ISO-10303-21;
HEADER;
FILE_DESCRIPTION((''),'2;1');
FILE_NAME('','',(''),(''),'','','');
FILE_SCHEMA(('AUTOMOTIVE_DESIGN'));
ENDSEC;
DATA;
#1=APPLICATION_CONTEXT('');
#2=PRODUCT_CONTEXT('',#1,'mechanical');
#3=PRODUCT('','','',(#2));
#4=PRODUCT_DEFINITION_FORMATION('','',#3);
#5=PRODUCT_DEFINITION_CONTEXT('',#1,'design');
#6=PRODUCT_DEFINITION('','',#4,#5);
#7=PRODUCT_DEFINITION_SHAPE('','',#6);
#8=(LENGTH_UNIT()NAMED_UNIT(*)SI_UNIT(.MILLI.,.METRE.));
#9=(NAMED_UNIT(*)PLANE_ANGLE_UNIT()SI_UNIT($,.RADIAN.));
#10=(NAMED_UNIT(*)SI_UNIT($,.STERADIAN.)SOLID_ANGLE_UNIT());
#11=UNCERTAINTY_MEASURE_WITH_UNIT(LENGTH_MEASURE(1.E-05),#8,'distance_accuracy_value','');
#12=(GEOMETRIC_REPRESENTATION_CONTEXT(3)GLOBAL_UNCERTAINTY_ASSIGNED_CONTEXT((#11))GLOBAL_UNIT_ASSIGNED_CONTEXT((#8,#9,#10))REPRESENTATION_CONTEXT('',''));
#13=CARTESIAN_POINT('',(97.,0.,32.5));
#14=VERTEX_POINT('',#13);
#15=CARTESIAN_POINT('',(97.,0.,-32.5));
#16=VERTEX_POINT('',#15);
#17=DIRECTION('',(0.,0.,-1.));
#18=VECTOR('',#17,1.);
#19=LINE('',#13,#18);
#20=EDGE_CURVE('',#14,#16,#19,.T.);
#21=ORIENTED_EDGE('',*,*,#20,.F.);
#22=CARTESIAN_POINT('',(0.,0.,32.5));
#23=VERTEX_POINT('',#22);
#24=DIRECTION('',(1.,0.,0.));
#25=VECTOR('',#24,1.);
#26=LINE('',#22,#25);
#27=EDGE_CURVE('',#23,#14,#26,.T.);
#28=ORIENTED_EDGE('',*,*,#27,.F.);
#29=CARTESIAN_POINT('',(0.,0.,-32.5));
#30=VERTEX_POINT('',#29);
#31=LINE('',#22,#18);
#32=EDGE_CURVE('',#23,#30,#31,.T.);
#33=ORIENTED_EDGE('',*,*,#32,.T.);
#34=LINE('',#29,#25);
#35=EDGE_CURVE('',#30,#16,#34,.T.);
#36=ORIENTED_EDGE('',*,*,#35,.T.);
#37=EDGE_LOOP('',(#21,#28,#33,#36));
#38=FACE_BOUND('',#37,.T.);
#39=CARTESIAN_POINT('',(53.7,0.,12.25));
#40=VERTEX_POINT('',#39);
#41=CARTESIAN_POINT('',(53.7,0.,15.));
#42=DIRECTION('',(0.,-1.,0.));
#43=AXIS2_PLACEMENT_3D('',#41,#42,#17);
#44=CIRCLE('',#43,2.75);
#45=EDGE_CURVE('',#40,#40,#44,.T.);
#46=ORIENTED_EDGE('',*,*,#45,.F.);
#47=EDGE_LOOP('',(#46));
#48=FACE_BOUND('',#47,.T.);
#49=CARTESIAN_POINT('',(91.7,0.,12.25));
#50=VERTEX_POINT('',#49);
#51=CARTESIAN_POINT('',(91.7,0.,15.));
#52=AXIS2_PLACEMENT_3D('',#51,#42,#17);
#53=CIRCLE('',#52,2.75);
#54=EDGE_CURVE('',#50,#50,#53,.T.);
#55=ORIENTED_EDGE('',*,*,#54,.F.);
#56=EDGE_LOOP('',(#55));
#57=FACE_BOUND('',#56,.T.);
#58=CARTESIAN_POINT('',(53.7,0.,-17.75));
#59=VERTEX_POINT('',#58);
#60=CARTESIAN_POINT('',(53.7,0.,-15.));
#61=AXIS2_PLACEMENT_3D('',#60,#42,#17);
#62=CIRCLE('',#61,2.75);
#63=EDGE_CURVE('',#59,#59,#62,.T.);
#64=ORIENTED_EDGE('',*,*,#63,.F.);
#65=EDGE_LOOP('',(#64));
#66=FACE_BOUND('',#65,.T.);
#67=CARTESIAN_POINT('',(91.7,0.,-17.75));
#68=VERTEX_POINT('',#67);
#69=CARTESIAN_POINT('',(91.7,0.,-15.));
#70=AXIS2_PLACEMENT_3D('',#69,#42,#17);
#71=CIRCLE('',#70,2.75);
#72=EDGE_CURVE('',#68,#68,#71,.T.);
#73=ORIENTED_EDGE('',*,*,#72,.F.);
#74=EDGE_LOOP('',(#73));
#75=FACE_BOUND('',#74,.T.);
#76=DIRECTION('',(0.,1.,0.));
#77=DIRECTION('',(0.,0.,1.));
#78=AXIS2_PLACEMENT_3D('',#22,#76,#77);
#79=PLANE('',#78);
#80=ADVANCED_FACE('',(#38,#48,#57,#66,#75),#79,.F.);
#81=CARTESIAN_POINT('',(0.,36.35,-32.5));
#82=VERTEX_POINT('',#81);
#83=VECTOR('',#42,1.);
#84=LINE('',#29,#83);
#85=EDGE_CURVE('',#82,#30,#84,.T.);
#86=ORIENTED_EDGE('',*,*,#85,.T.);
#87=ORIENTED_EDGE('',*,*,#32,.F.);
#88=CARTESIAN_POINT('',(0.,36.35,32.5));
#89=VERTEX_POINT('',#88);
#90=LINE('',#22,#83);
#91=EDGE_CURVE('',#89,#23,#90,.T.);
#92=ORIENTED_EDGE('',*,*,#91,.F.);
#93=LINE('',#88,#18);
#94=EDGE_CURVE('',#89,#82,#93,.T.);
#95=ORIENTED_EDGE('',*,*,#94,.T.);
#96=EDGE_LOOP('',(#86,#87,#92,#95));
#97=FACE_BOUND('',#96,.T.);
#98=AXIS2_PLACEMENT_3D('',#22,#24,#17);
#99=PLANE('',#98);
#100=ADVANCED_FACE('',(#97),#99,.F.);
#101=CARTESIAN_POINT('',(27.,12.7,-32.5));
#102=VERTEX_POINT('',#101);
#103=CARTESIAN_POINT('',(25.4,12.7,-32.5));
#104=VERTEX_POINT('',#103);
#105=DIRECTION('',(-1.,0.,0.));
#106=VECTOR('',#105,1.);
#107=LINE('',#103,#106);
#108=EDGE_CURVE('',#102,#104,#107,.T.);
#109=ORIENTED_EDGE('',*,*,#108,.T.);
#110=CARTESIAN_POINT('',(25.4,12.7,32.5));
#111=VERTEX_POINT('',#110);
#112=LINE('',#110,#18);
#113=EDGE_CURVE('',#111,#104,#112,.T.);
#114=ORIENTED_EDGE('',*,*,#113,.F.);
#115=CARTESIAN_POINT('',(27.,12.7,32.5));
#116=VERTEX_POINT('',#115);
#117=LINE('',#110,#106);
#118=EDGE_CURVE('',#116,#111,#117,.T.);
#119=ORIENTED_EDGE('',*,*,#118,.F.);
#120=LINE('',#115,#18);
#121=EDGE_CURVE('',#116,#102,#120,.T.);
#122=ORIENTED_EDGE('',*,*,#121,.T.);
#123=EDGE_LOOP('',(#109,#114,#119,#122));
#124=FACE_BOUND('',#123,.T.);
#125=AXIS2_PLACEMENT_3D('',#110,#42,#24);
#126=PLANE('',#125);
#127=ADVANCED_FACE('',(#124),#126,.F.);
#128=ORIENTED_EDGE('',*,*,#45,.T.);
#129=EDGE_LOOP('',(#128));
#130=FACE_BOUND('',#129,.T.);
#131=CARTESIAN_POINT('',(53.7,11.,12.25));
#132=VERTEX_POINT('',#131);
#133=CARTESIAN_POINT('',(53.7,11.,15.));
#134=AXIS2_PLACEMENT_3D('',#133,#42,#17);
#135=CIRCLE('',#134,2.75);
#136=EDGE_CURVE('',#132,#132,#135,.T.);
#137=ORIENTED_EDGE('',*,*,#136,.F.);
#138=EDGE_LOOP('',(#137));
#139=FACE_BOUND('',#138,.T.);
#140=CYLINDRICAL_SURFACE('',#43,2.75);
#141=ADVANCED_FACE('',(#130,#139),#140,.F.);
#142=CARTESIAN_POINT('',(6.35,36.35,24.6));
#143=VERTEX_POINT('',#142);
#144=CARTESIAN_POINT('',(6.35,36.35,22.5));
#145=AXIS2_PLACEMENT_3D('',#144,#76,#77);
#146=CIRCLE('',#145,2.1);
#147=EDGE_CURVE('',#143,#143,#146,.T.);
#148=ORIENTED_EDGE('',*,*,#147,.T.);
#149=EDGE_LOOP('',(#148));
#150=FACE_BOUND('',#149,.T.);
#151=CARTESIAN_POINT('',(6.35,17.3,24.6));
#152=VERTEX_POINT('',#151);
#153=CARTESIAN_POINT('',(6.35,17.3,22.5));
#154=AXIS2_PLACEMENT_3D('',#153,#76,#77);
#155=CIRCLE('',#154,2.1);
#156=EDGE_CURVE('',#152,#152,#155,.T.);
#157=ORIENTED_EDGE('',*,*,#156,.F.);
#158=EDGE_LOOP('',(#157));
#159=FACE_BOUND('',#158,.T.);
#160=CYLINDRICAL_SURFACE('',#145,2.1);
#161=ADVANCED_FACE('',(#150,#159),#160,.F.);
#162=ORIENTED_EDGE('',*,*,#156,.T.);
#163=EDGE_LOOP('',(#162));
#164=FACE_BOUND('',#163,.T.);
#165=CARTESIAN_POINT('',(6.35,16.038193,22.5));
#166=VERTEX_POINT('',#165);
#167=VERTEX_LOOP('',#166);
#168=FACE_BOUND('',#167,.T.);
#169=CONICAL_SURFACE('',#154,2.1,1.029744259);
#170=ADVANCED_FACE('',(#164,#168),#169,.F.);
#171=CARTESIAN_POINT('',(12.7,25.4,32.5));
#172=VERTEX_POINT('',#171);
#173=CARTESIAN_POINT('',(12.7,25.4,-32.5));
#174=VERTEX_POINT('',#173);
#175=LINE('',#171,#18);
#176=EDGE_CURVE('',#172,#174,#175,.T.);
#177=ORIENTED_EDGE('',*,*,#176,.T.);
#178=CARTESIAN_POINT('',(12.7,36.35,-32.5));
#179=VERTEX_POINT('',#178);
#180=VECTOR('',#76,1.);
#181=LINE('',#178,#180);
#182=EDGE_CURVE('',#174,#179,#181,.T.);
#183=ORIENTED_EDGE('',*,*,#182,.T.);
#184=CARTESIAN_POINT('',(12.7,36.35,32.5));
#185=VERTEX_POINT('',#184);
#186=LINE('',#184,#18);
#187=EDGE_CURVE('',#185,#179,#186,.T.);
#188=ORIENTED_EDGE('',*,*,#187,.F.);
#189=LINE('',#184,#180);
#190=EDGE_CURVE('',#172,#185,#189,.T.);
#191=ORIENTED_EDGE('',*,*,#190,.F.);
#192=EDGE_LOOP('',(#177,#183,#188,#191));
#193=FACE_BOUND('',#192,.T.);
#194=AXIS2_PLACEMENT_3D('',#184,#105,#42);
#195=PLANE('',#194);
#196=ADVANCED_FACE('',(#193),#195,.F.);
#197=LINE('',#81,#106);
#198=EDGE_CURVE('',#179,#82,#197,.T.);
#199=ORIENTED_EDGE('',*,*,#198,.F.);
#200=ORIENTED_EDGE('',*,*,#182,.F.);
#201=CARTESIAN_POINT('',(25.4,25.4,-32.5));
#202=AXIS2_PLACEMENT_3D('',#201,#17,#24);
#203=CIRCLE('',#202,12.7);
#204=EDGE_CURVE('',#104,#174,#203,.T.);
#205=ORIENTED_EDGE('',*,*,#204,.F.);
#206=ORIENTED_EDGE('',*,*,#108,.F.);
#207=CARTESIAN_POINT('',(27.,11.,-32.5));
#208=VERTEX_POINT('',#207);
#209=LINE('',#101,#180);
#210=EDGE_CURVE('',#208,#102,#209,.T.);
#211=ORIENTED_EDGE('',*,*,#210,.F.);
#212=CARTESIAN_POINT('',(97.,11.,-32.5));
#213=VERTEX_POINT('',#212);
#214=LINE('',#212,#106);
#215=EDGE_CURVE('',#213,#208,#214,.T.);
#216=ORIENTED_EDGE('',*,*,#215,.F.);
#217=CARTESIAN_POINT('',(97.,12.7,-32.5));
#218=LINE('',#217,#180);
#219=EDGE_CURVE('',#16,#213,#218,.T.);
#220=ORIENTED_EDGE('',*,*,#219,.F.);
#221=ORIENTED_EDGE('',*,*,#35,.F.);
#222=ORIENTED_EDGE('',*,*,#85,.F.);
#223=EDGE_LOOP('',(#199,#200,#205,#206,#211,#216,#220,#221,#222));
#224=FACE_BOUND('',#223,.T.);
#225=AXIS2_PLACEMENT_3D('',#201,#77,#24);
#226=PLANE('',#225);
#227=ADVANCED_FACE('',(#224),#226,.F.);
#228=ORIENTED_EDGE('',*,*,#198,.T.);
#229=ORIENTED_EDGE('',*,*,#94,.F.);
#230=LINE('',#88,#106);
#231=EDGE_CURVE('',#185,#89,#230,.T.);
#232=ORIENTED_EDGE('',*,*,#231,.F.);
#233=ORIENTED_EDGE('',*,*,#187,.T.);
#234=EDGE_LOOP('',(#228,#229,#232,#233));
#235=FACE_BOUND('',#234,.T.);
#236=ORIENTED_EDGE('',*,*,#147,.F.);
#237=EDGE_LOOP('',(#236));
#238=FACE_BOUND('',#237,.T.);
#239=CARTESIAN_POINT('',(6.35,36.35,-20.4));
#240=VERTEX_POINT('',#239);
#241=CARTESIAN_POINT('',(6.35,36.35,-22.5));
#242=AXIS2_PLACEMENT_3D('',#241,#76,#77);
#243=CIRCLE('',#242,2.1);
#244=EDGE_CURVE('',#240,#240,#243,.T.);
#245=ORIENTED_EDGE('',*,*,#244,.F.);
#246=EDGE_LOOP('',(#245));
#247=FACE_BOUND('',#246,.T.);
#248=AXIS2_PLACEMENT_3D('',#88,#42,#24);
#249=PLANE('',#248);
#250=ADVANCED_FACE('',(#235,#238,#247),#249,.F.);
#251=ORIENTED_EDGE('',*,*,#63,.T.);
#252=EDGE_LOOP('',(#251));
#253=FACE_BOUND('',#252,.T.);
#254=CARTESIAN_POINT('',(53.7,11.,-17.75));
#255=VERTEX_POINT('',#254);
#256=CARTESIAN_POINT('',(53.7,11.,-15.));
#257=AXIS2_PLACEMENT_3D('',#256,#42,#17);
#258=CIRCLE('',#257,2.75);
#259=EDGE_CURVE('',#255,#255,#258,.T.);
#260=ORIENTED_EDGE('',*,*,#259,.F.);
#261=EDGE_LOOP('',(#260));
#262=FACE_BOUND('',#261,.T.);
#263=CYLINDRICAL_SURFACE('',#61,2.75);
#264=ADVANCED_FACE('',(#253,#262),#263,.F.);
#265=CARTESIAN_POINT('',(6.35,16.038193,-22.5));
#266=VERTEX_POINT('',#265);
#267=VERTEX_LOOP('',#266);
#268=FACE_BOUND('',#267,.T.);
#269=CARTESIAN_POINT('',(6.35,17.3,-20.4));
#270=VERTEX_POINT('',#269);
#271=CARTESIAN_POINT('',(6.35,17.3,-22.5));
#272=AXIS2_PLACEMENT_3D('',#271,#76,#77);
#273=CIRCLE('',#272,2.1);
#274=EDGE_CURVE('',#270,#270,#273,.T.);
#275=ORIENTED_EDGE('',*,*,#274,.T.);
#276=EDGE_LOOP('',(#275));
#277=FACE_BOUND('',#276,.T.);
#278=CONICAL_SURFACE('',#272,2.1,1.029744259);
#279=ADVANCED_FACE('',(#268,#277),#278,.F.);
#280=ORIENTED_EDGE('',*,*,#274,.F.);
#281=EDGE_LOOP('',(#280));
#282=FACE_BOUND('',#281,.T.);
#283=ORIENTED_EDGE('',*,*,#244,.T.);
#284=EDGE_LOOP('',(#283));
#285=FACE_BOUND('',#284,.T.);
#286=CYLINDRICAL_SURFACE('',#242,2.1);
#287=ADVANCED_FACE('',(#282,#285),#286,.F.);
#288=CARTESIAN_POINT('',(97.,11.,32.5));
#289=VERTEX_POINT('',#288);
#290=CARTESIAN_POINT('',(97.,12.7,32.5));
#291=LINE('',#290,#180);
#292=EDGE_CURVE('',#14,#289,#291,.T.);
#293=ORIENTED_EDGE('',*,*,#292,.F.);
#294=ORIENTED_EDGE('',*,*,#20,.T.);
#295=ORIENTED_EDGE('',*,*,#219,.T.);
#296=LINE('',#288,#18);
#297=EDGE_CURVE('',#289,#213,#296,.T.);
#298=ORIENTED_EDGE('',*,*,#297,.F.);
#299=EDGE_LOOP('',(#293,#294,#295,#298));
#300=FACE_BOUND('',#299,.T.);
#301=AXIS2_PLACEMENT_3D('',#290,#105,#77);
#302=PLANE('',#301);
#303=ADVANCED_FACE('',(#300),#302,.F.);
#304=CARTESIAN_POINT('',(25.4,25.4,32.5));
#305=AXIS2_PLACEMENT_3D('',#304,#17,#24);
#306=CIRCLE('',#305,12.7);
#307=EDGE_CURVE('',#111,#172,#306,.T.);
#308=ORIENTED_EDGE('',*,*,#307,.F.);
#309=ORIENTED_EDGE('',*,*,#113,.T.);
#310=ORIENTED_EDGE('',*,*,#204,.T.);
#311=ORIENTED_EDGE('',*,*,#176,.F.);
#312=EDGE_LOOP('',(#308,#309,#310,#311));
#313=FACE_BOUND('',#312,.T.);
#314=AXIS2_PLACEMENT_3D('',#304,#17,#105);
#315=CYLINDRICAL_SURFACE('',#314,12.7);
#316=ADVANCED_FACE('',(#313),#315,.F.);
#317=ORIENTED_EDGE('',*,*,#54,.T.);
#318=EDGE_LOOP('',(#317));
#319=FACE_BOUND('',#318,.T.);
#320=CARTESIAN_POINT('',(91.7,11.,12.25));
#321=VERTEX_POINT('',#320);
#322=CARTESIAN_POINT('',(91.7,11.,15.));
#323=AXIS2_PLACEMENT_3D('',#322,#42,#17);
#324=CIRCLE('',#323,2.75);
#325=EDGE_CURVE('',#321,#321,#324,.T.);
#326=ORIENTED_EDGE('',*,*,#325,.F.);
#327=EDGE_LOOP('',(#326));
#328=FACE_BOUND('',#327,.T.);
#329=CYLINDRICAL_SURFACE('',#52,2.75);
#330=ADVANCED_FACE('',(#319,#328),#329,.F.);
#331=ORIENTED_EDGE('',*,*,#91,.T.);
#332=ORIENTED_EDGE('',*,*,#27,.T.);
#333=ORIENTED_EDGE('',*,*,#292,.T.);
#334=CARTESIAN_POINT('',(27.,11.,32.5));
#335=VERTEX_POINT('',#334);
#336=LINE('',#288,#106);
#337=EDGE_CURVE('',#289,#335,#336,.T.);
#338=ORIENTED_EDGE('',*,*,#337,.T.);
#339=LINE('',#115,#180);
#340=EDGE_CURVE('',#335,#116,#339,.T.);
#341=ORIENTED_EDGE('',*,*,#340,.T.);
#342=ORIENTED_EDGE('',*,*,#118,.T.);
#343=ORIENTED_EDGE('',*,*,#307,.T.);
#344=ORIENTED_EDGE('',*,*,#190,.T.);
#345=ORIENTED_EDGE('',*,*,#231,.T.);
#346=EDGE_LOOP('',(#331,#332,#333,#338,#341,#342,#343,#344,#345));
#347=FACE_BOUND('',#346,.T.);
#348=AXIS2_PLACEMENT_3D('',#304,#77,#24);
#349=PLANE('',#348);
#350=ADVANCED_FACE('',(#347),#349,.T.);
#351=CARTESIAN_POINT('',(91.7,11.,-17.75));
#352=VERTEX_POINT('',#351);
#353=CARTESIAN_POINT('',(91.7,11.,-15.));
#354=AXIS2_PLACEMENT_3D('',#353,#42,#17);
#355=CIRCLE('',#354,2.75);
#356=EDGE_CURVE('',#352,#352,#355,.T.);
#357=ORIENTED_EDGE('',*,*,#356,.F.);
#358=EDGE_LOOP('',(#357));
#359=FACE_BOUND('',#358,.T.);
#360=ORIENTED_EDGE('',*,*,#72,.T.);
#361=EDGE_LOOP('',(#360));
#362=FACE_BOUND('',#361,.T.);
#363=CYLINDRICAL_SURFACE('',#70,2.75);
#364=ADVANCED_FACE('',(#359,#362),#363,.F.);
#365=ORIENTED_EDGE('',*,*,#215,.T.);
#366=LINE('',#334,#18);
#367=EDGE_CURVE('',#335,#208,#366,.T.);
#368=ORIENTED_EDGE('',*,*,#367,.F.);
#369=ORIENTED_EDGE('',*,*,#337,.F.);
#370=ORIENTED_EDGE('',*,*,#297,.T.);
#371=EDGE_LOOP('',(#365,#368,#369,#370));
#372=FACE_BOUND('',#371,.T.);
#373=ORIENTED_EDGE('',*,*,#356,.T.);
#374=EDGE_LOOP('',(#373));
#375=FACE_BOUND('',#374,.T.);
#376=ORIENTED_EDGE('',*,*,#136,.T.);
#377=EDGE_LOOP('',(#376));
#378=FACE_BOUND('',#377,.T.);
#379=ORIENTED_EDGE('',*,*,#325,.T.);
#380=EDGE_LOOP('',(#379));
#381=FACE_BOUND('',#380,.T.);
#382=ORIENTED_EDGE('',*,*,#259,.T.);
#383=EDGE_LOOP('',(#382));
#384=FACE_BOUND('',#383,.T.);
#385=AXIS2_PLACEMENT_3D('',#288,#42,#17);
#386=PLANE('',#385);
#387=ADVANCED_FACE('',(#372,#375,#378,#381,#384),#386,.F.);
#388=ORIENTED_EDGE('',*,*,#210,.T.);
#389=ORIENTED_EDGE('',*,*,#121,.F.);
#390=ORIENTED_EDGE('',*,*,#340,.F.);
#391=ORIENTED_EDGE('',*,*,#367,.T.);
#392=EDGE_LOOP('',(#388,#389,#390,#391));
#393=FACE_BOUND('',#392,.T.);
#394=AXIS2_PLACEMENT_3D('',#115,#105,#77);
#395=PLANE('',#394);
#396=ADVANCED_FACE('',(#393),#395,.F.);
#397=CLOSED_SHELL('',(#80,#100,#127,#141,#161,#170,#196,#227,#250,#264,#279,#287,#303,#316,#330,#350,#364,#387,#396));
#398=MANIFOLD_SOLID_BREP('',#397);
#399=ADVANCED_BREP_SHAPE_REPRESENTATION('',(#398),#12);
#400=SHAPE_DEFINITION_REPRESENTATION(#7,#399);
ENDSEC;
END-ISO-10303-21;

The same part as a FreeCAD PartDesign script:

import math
import FreeCAD as App
import Part
import Sketcher

doc = App.newDocument("Part")
body = doc.addObject("PartDesign::Body", "Body")

sketch1 = body.newObject("Sketcher::SketchObject", "Sketch")
sketch1.AttachmentSupport = (doc.getObject("XY_Plane"), [""])
sketch1.MapMode = "FlatFace"
sketch1.addGeometry([
    Part.LineSegment(App.Vector(0, 0, 0), App.Vector(97, 0, 0)),
    Part.LineSegment(App.Vector(97, 0, 0), App.Vector(97, 12.7, 0)),
    Part.LineSegment(App.Vector(97, 12.7, 0), App.Vector(25.4, 12.7, 0)),
    Part.ArcOfCircle(Part.Circle(App.Vector(25.4, 25.4, 0), App.Vector(0, 0, 1), 12.7), math.radians(180), math.radians(270)),
    Part.LineSegment(App.Vector(12.7, 25.4, 0), App.Vector(12.7, 36.35, 0)),
    Part.LineSegment(App.Vector(12.7, 36.35, 0), App.Vector(0, 36.35, 0)),
    Part.LineSegment(App.Vector(0, 36.35, 0), App.Vector(0, 0, 0)),
], False)
sketch1.addConstraint([
    Sketcher.Constraint("Coincident", 0, 2, 1, 1),
    Sketcher.Constraint("Coincident", 1, 2, 2, 1),
    Sketcher.Constraint("Tangent", 2, 2, 3, 2),
    Sketcher.Constraint("Tangent", 3, 1, 4, 1),
    Sketcher.Constraint("Coincident", 4, 2, 5, 1),
    Sketcher.Constraint("Coincident", 5, 2, 6, 1),
    Sketcher.Constraint("Coincident", 6, 2, 0, 1),
    Sketcher.Constraint("Horizontal", 0),
    Sketcher.Constraint("Vertical", 1),
    Sketcher.Constraint("Horizontal", 2),
    Sketcher.Constraint("Vertical", 4),
    Sketcher.Constraint("Horizontal", 5),
    Sketcher.Constraint("Vertical", 6),
    Sketcher.Constraint("Coincident", 6, 2, -1, 1),
    Sketcher.Constraint("Equal", 5, 1),
    Sketcher.Constraint("Radius", 3, 12.7),
    Sketcher.Constraint("DistanceX", 0, 1, 0, 2, 97.0),
    Sketcher.Constraint("DistanceX", 2, 2, 2, 1, 71.6),
    Sketcher.Constraint("DistanceY", 4, 1, 4, 2, 10.95),
])
pad1 = body.newObject("PartDesign::Pad", "Pad")
pad1.Profile = sketch1
pad1.Length = 65
pad1.Midplane = True

sketch2 = body.newObject("Sketcher::SketchObject", "Sketch001")
sketch2.AttachmentSupport = (doc.getObject("XY_Plane"), [""])
sketch2.MapMode = "FlatFace"
sketch2.AttachmentOffset = App.Placement(App.Vector(0, 0, -32.5), App.Rotation())
sketch2.addGeometry([
    Part.LineSegment(App.Vector(97, 12.7, 0), App.Vector(97, 11, 0)),
    Part.LineSegment(App.Vector(97, 11, 0), App.Vector(27, 11, 0)),
    Part.LineSegment(App.Vector(27, 11, 0), App.Vector(27, 12.7, 0)),
    Part.LineSegment(App.Vector(27, 12.7, 0), App.Vector(97, 12.7, 0)),
], False)
sketch2.addConstraint([
    Sketcher.Constraint("Coincident", 0, 2, 1, 1),
    Sketcher.Constraint("Coincident", 1, 2, 2, 1),
    Sketcher.Constraint("Coincident", 2, 2, 3, 1),
    Sketcher.Constraint("Coincident", 3, 2, 0, 1),
    Sketcher.Constraint("Vertical", 0),
    Sketcher.Constraint("Horizontal", 1),
    Sketcher.Constraint("Vertical", 2),
    Sketcher.Constraint("Horizontal", 3),
    Sketcher.Constraint("DistanceX", 1, 2, 1, 1, 70.0),
    Sketcher.Constraint("DistanceY", 0, 2, 0, 1, 1.7),
    Sketcher.Constraint("DistanceX", -1, 1, 0, 2, 97.0),
    Sketcher.Constraint("DistanceY", -1, 1, 0, 2, 11.0),
])
pocket1 = body.newObject("PartDesign::Pocket", "Pocket")
pocket1.Profile = sketch2
pocket1.Type = "ThroughAll"
pocket1.Reversed = True

sketch3 = body.newObject("Sketcher::SketchObject", "Sketch002")
sketch3.AttachmentSupport = (doc.getObject("XZ_Plane"), [""])
sketch3.MapMode = "FlatFace"
sketch3.addGeometry([
    Part.Circle(App.Vector(53.7, 15, 0), App.Vector(0, 0, 1), 2.75),
    Part.Circle(App.Vector(91.7, 15, 0), App.Vector(0, 0, 1), 2.75),
    Part.Circle(App.Vector(91.7, -15, 0), App.Vector(0, 0, 1), 2.75),
    Part.Circle(App.Vector(53.7, -15, 0), App.Vector(0, 0, 1), 2.75),
], False)
sketch3.addConstraint([
    Sketcher.Constraint("Equal", 0, 1),
    Sketcher.Constraint("Equal", 1, 2),
    Sketcher.Constraint("Equal", 2, 3),
    Sketcher.Constraint("Symmetric", 1, 3, 2, 3, -1),
    Sketcher.Constraint("Symmetric", 0, 3, 3, 3, -1),
    Sketcher.Constraint("Horizontal", 0, 3, 1, 3),
    Sketcher.Constraint("Diameter", 0, 5.5),
    Sketcher.Constraint("DistanceY", -1, 1, 0, 3, 15.0),
    Sketcher.Constraint("DistanceX", 0, 3, 1, 3, 38.0),
    Sketcher.Constraint("DistanceX", -1, 1, 0, 3, 53.7),
])
doc.recompute()
hole = body.newObject("PartDesign::Hole", "Hole")
hole.Profile = sketch3
hole.ThreadType = "None"
hole.Diameter = 5.5
hole.DepthType = "ThroughAll"

sketch4 = body.newObject("Sketcher::SketchObject", "Sketch003")
sketch4.AttachmentSupport = (doc.getObject("XZ_Plane"), [""])
sketch4.MapMode = "FlatFace"
sketch4.AttachmentOffset = App.Placement(App.Vector(0, 0, -36.35), App.Rotation())
sketch4.addGeometry([
    Part.Circle(App.Vector(6.35, 22.5, 0), App.Vector(0, 0, 1), 2.1),
    Part.Circle(App.Vector(6.35, -22.5, 0), App.Vector(0, 0, 1), 2.1),
], False)
sketch4.addConstraint([
    Sketcher.Constraint("Equal", 0, 1),
    Sketcher.Constraint("Symmetric", 0, 3, 1, 3, -1),
    Sketcher.Constraint("Diameter", 0, 4.2),
    Sketcher.Constraint("DistanceY", 1, 3, 0, 3, 45.0),
    Sketcher.Constraint("DistanceX", -1, 1, 0, 3, 6.35),
])
doc.recompute()
hole2 = body.newObject("PartDesign::Hole", "Hole001")
hole2.Profile = sketch4
hole2.ThreadType = "None"
hole2.Diameter = 4.2
hole2.DepthType = "Dimension"
hole2.Depth = 19.05
hole2.DrillPoint = "Angled"
hole2.DrillPointAngle = 118
hole2.Reversed = True

doc.recompute()
